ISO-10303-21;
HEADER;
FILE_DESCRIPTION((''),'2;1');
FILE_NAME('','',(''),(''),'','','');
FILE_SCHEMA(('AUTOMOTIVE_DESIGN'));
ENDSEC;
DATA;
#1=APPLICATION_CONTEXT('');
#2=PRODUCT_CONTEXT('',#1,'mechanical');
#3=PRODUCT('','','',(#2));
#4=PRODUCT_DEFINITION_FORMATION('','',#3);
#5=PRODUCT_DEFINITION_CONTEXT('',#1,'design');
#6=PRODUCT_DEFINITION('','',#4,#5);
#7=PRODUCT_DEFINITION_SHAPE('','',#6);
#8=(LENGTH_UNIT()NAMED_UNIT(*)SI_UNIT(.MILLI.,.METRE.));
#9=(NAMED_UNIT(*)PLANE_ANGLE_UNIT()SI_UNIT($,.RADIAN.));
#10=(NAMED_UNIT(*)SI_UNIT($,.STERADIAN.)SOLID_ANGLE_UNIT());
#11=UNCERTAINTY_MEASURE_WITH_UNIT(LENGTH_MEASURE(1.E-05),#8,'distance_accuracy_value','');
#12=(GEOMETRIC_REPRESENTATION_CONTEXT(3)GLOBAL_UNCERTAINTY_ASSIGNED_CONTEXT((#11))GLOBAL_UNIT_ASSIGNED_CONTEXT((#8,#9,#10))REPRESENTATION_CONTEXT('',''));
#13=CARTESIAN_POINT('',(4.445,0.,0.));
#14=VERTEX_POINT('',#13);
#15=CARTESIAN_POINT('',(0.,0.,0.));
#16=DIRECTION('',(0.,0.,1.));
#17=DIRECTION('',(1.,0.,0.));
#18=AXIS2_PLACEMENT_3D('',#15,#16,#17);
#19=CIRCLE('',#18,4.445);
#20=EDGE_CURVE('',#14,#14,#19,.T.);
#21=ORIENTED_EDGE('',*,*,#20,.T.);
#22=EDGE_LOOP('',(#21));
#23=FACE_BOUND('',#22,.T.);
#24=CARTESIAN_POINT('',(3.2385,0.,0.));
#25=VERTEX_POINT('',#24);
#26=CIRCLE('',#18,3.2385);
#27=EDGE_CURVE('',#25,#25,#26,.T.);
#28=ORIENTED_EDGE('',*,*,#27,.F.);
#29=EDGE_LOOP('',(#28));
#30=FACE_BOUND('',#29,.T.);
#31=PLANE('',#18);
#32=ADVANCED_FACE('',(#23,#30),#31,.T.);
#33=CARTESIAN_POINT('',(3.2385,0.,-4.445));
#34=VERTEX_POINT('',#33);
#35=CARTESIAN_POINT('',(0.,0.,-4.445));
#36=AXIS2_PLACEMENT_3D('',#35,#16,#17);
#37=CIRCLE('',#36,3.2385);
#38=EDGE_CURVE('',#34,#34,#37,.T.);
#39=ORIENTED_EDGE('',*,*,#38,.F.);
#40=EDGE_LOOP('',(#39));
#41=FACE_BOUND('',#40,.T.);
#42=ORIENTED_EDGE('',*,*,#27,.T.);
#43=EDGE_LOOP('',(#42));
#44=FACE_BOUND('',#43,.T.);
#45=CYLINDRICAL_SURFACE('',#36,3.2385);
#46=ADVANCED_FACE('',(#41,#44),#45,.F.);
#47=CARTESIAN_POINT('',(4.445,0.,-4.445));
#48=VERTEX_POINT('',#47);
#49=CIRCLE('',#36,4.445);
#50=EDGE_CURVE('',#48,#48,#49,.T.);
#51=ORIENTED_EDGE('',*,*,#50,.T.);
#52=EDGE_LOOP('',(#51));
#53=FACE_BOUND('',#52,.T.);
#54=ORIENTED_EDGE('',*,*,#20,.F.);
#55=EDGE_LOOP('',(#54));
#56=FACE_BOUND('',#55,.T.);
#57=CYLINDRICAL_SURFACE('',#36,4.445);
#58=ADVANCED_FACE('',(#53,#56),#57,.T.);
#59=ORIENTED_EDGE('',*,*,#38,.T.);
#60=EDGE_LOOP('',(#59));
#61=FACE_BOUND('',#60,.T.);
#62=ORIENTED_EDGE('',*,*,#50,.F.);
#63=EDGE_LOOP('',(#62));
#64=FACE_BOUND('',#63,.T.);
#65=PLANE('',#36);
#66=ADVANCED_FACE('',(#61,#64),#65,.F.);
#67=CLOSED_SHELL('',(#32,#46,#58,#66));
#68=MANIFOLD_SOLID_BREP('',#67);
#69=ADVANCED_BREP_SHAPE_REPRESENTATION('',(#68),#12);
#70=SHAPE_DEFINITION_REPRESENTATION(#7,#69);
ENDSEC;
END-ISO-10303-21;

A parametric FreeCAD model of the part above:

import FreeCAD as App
import Part
import Sketcher
Q = App.Units.Quantity

doc = App.newDocument("Part")
body = doc.addObject("PartDesign::Body", "Body")

sketch1 = body.newObject("Sketcher::SketchObject", "Sketch")
sketch1.AttachmentSupport = (doc.getObject("XY_Plane"), [""])
sketch1.MapMode = "FlatFace"
sketch1.addGeometry([
    Part.Circle(App.Vector(0, 0, 0), App.Vector(0, 0, 1), 4.4),
    Part.Circle(App.Vector(0, 0, 0), App.Vector(0, 0, 1), 3.2),
], False)
sketch1.addConstraint([
    Sketcher.Constraint("Coincident", 0, 3, -1, 1),
    Sketcher.Constraint("Coincident", 1, 3, -1, 1),
    Sketcher.Constraint("Diameter", 0, Q("0.35 in")),
    Sketcher.Constraint("Diameter", 1, Q("0.255 in")),
])
pad1 = body.newObject("PartDesign::Pad", "Pad")
pad1.Profile = sketch1
pad1.Length = Q("0.175 in")
pad1.Reversed = True

doc.recompute()
